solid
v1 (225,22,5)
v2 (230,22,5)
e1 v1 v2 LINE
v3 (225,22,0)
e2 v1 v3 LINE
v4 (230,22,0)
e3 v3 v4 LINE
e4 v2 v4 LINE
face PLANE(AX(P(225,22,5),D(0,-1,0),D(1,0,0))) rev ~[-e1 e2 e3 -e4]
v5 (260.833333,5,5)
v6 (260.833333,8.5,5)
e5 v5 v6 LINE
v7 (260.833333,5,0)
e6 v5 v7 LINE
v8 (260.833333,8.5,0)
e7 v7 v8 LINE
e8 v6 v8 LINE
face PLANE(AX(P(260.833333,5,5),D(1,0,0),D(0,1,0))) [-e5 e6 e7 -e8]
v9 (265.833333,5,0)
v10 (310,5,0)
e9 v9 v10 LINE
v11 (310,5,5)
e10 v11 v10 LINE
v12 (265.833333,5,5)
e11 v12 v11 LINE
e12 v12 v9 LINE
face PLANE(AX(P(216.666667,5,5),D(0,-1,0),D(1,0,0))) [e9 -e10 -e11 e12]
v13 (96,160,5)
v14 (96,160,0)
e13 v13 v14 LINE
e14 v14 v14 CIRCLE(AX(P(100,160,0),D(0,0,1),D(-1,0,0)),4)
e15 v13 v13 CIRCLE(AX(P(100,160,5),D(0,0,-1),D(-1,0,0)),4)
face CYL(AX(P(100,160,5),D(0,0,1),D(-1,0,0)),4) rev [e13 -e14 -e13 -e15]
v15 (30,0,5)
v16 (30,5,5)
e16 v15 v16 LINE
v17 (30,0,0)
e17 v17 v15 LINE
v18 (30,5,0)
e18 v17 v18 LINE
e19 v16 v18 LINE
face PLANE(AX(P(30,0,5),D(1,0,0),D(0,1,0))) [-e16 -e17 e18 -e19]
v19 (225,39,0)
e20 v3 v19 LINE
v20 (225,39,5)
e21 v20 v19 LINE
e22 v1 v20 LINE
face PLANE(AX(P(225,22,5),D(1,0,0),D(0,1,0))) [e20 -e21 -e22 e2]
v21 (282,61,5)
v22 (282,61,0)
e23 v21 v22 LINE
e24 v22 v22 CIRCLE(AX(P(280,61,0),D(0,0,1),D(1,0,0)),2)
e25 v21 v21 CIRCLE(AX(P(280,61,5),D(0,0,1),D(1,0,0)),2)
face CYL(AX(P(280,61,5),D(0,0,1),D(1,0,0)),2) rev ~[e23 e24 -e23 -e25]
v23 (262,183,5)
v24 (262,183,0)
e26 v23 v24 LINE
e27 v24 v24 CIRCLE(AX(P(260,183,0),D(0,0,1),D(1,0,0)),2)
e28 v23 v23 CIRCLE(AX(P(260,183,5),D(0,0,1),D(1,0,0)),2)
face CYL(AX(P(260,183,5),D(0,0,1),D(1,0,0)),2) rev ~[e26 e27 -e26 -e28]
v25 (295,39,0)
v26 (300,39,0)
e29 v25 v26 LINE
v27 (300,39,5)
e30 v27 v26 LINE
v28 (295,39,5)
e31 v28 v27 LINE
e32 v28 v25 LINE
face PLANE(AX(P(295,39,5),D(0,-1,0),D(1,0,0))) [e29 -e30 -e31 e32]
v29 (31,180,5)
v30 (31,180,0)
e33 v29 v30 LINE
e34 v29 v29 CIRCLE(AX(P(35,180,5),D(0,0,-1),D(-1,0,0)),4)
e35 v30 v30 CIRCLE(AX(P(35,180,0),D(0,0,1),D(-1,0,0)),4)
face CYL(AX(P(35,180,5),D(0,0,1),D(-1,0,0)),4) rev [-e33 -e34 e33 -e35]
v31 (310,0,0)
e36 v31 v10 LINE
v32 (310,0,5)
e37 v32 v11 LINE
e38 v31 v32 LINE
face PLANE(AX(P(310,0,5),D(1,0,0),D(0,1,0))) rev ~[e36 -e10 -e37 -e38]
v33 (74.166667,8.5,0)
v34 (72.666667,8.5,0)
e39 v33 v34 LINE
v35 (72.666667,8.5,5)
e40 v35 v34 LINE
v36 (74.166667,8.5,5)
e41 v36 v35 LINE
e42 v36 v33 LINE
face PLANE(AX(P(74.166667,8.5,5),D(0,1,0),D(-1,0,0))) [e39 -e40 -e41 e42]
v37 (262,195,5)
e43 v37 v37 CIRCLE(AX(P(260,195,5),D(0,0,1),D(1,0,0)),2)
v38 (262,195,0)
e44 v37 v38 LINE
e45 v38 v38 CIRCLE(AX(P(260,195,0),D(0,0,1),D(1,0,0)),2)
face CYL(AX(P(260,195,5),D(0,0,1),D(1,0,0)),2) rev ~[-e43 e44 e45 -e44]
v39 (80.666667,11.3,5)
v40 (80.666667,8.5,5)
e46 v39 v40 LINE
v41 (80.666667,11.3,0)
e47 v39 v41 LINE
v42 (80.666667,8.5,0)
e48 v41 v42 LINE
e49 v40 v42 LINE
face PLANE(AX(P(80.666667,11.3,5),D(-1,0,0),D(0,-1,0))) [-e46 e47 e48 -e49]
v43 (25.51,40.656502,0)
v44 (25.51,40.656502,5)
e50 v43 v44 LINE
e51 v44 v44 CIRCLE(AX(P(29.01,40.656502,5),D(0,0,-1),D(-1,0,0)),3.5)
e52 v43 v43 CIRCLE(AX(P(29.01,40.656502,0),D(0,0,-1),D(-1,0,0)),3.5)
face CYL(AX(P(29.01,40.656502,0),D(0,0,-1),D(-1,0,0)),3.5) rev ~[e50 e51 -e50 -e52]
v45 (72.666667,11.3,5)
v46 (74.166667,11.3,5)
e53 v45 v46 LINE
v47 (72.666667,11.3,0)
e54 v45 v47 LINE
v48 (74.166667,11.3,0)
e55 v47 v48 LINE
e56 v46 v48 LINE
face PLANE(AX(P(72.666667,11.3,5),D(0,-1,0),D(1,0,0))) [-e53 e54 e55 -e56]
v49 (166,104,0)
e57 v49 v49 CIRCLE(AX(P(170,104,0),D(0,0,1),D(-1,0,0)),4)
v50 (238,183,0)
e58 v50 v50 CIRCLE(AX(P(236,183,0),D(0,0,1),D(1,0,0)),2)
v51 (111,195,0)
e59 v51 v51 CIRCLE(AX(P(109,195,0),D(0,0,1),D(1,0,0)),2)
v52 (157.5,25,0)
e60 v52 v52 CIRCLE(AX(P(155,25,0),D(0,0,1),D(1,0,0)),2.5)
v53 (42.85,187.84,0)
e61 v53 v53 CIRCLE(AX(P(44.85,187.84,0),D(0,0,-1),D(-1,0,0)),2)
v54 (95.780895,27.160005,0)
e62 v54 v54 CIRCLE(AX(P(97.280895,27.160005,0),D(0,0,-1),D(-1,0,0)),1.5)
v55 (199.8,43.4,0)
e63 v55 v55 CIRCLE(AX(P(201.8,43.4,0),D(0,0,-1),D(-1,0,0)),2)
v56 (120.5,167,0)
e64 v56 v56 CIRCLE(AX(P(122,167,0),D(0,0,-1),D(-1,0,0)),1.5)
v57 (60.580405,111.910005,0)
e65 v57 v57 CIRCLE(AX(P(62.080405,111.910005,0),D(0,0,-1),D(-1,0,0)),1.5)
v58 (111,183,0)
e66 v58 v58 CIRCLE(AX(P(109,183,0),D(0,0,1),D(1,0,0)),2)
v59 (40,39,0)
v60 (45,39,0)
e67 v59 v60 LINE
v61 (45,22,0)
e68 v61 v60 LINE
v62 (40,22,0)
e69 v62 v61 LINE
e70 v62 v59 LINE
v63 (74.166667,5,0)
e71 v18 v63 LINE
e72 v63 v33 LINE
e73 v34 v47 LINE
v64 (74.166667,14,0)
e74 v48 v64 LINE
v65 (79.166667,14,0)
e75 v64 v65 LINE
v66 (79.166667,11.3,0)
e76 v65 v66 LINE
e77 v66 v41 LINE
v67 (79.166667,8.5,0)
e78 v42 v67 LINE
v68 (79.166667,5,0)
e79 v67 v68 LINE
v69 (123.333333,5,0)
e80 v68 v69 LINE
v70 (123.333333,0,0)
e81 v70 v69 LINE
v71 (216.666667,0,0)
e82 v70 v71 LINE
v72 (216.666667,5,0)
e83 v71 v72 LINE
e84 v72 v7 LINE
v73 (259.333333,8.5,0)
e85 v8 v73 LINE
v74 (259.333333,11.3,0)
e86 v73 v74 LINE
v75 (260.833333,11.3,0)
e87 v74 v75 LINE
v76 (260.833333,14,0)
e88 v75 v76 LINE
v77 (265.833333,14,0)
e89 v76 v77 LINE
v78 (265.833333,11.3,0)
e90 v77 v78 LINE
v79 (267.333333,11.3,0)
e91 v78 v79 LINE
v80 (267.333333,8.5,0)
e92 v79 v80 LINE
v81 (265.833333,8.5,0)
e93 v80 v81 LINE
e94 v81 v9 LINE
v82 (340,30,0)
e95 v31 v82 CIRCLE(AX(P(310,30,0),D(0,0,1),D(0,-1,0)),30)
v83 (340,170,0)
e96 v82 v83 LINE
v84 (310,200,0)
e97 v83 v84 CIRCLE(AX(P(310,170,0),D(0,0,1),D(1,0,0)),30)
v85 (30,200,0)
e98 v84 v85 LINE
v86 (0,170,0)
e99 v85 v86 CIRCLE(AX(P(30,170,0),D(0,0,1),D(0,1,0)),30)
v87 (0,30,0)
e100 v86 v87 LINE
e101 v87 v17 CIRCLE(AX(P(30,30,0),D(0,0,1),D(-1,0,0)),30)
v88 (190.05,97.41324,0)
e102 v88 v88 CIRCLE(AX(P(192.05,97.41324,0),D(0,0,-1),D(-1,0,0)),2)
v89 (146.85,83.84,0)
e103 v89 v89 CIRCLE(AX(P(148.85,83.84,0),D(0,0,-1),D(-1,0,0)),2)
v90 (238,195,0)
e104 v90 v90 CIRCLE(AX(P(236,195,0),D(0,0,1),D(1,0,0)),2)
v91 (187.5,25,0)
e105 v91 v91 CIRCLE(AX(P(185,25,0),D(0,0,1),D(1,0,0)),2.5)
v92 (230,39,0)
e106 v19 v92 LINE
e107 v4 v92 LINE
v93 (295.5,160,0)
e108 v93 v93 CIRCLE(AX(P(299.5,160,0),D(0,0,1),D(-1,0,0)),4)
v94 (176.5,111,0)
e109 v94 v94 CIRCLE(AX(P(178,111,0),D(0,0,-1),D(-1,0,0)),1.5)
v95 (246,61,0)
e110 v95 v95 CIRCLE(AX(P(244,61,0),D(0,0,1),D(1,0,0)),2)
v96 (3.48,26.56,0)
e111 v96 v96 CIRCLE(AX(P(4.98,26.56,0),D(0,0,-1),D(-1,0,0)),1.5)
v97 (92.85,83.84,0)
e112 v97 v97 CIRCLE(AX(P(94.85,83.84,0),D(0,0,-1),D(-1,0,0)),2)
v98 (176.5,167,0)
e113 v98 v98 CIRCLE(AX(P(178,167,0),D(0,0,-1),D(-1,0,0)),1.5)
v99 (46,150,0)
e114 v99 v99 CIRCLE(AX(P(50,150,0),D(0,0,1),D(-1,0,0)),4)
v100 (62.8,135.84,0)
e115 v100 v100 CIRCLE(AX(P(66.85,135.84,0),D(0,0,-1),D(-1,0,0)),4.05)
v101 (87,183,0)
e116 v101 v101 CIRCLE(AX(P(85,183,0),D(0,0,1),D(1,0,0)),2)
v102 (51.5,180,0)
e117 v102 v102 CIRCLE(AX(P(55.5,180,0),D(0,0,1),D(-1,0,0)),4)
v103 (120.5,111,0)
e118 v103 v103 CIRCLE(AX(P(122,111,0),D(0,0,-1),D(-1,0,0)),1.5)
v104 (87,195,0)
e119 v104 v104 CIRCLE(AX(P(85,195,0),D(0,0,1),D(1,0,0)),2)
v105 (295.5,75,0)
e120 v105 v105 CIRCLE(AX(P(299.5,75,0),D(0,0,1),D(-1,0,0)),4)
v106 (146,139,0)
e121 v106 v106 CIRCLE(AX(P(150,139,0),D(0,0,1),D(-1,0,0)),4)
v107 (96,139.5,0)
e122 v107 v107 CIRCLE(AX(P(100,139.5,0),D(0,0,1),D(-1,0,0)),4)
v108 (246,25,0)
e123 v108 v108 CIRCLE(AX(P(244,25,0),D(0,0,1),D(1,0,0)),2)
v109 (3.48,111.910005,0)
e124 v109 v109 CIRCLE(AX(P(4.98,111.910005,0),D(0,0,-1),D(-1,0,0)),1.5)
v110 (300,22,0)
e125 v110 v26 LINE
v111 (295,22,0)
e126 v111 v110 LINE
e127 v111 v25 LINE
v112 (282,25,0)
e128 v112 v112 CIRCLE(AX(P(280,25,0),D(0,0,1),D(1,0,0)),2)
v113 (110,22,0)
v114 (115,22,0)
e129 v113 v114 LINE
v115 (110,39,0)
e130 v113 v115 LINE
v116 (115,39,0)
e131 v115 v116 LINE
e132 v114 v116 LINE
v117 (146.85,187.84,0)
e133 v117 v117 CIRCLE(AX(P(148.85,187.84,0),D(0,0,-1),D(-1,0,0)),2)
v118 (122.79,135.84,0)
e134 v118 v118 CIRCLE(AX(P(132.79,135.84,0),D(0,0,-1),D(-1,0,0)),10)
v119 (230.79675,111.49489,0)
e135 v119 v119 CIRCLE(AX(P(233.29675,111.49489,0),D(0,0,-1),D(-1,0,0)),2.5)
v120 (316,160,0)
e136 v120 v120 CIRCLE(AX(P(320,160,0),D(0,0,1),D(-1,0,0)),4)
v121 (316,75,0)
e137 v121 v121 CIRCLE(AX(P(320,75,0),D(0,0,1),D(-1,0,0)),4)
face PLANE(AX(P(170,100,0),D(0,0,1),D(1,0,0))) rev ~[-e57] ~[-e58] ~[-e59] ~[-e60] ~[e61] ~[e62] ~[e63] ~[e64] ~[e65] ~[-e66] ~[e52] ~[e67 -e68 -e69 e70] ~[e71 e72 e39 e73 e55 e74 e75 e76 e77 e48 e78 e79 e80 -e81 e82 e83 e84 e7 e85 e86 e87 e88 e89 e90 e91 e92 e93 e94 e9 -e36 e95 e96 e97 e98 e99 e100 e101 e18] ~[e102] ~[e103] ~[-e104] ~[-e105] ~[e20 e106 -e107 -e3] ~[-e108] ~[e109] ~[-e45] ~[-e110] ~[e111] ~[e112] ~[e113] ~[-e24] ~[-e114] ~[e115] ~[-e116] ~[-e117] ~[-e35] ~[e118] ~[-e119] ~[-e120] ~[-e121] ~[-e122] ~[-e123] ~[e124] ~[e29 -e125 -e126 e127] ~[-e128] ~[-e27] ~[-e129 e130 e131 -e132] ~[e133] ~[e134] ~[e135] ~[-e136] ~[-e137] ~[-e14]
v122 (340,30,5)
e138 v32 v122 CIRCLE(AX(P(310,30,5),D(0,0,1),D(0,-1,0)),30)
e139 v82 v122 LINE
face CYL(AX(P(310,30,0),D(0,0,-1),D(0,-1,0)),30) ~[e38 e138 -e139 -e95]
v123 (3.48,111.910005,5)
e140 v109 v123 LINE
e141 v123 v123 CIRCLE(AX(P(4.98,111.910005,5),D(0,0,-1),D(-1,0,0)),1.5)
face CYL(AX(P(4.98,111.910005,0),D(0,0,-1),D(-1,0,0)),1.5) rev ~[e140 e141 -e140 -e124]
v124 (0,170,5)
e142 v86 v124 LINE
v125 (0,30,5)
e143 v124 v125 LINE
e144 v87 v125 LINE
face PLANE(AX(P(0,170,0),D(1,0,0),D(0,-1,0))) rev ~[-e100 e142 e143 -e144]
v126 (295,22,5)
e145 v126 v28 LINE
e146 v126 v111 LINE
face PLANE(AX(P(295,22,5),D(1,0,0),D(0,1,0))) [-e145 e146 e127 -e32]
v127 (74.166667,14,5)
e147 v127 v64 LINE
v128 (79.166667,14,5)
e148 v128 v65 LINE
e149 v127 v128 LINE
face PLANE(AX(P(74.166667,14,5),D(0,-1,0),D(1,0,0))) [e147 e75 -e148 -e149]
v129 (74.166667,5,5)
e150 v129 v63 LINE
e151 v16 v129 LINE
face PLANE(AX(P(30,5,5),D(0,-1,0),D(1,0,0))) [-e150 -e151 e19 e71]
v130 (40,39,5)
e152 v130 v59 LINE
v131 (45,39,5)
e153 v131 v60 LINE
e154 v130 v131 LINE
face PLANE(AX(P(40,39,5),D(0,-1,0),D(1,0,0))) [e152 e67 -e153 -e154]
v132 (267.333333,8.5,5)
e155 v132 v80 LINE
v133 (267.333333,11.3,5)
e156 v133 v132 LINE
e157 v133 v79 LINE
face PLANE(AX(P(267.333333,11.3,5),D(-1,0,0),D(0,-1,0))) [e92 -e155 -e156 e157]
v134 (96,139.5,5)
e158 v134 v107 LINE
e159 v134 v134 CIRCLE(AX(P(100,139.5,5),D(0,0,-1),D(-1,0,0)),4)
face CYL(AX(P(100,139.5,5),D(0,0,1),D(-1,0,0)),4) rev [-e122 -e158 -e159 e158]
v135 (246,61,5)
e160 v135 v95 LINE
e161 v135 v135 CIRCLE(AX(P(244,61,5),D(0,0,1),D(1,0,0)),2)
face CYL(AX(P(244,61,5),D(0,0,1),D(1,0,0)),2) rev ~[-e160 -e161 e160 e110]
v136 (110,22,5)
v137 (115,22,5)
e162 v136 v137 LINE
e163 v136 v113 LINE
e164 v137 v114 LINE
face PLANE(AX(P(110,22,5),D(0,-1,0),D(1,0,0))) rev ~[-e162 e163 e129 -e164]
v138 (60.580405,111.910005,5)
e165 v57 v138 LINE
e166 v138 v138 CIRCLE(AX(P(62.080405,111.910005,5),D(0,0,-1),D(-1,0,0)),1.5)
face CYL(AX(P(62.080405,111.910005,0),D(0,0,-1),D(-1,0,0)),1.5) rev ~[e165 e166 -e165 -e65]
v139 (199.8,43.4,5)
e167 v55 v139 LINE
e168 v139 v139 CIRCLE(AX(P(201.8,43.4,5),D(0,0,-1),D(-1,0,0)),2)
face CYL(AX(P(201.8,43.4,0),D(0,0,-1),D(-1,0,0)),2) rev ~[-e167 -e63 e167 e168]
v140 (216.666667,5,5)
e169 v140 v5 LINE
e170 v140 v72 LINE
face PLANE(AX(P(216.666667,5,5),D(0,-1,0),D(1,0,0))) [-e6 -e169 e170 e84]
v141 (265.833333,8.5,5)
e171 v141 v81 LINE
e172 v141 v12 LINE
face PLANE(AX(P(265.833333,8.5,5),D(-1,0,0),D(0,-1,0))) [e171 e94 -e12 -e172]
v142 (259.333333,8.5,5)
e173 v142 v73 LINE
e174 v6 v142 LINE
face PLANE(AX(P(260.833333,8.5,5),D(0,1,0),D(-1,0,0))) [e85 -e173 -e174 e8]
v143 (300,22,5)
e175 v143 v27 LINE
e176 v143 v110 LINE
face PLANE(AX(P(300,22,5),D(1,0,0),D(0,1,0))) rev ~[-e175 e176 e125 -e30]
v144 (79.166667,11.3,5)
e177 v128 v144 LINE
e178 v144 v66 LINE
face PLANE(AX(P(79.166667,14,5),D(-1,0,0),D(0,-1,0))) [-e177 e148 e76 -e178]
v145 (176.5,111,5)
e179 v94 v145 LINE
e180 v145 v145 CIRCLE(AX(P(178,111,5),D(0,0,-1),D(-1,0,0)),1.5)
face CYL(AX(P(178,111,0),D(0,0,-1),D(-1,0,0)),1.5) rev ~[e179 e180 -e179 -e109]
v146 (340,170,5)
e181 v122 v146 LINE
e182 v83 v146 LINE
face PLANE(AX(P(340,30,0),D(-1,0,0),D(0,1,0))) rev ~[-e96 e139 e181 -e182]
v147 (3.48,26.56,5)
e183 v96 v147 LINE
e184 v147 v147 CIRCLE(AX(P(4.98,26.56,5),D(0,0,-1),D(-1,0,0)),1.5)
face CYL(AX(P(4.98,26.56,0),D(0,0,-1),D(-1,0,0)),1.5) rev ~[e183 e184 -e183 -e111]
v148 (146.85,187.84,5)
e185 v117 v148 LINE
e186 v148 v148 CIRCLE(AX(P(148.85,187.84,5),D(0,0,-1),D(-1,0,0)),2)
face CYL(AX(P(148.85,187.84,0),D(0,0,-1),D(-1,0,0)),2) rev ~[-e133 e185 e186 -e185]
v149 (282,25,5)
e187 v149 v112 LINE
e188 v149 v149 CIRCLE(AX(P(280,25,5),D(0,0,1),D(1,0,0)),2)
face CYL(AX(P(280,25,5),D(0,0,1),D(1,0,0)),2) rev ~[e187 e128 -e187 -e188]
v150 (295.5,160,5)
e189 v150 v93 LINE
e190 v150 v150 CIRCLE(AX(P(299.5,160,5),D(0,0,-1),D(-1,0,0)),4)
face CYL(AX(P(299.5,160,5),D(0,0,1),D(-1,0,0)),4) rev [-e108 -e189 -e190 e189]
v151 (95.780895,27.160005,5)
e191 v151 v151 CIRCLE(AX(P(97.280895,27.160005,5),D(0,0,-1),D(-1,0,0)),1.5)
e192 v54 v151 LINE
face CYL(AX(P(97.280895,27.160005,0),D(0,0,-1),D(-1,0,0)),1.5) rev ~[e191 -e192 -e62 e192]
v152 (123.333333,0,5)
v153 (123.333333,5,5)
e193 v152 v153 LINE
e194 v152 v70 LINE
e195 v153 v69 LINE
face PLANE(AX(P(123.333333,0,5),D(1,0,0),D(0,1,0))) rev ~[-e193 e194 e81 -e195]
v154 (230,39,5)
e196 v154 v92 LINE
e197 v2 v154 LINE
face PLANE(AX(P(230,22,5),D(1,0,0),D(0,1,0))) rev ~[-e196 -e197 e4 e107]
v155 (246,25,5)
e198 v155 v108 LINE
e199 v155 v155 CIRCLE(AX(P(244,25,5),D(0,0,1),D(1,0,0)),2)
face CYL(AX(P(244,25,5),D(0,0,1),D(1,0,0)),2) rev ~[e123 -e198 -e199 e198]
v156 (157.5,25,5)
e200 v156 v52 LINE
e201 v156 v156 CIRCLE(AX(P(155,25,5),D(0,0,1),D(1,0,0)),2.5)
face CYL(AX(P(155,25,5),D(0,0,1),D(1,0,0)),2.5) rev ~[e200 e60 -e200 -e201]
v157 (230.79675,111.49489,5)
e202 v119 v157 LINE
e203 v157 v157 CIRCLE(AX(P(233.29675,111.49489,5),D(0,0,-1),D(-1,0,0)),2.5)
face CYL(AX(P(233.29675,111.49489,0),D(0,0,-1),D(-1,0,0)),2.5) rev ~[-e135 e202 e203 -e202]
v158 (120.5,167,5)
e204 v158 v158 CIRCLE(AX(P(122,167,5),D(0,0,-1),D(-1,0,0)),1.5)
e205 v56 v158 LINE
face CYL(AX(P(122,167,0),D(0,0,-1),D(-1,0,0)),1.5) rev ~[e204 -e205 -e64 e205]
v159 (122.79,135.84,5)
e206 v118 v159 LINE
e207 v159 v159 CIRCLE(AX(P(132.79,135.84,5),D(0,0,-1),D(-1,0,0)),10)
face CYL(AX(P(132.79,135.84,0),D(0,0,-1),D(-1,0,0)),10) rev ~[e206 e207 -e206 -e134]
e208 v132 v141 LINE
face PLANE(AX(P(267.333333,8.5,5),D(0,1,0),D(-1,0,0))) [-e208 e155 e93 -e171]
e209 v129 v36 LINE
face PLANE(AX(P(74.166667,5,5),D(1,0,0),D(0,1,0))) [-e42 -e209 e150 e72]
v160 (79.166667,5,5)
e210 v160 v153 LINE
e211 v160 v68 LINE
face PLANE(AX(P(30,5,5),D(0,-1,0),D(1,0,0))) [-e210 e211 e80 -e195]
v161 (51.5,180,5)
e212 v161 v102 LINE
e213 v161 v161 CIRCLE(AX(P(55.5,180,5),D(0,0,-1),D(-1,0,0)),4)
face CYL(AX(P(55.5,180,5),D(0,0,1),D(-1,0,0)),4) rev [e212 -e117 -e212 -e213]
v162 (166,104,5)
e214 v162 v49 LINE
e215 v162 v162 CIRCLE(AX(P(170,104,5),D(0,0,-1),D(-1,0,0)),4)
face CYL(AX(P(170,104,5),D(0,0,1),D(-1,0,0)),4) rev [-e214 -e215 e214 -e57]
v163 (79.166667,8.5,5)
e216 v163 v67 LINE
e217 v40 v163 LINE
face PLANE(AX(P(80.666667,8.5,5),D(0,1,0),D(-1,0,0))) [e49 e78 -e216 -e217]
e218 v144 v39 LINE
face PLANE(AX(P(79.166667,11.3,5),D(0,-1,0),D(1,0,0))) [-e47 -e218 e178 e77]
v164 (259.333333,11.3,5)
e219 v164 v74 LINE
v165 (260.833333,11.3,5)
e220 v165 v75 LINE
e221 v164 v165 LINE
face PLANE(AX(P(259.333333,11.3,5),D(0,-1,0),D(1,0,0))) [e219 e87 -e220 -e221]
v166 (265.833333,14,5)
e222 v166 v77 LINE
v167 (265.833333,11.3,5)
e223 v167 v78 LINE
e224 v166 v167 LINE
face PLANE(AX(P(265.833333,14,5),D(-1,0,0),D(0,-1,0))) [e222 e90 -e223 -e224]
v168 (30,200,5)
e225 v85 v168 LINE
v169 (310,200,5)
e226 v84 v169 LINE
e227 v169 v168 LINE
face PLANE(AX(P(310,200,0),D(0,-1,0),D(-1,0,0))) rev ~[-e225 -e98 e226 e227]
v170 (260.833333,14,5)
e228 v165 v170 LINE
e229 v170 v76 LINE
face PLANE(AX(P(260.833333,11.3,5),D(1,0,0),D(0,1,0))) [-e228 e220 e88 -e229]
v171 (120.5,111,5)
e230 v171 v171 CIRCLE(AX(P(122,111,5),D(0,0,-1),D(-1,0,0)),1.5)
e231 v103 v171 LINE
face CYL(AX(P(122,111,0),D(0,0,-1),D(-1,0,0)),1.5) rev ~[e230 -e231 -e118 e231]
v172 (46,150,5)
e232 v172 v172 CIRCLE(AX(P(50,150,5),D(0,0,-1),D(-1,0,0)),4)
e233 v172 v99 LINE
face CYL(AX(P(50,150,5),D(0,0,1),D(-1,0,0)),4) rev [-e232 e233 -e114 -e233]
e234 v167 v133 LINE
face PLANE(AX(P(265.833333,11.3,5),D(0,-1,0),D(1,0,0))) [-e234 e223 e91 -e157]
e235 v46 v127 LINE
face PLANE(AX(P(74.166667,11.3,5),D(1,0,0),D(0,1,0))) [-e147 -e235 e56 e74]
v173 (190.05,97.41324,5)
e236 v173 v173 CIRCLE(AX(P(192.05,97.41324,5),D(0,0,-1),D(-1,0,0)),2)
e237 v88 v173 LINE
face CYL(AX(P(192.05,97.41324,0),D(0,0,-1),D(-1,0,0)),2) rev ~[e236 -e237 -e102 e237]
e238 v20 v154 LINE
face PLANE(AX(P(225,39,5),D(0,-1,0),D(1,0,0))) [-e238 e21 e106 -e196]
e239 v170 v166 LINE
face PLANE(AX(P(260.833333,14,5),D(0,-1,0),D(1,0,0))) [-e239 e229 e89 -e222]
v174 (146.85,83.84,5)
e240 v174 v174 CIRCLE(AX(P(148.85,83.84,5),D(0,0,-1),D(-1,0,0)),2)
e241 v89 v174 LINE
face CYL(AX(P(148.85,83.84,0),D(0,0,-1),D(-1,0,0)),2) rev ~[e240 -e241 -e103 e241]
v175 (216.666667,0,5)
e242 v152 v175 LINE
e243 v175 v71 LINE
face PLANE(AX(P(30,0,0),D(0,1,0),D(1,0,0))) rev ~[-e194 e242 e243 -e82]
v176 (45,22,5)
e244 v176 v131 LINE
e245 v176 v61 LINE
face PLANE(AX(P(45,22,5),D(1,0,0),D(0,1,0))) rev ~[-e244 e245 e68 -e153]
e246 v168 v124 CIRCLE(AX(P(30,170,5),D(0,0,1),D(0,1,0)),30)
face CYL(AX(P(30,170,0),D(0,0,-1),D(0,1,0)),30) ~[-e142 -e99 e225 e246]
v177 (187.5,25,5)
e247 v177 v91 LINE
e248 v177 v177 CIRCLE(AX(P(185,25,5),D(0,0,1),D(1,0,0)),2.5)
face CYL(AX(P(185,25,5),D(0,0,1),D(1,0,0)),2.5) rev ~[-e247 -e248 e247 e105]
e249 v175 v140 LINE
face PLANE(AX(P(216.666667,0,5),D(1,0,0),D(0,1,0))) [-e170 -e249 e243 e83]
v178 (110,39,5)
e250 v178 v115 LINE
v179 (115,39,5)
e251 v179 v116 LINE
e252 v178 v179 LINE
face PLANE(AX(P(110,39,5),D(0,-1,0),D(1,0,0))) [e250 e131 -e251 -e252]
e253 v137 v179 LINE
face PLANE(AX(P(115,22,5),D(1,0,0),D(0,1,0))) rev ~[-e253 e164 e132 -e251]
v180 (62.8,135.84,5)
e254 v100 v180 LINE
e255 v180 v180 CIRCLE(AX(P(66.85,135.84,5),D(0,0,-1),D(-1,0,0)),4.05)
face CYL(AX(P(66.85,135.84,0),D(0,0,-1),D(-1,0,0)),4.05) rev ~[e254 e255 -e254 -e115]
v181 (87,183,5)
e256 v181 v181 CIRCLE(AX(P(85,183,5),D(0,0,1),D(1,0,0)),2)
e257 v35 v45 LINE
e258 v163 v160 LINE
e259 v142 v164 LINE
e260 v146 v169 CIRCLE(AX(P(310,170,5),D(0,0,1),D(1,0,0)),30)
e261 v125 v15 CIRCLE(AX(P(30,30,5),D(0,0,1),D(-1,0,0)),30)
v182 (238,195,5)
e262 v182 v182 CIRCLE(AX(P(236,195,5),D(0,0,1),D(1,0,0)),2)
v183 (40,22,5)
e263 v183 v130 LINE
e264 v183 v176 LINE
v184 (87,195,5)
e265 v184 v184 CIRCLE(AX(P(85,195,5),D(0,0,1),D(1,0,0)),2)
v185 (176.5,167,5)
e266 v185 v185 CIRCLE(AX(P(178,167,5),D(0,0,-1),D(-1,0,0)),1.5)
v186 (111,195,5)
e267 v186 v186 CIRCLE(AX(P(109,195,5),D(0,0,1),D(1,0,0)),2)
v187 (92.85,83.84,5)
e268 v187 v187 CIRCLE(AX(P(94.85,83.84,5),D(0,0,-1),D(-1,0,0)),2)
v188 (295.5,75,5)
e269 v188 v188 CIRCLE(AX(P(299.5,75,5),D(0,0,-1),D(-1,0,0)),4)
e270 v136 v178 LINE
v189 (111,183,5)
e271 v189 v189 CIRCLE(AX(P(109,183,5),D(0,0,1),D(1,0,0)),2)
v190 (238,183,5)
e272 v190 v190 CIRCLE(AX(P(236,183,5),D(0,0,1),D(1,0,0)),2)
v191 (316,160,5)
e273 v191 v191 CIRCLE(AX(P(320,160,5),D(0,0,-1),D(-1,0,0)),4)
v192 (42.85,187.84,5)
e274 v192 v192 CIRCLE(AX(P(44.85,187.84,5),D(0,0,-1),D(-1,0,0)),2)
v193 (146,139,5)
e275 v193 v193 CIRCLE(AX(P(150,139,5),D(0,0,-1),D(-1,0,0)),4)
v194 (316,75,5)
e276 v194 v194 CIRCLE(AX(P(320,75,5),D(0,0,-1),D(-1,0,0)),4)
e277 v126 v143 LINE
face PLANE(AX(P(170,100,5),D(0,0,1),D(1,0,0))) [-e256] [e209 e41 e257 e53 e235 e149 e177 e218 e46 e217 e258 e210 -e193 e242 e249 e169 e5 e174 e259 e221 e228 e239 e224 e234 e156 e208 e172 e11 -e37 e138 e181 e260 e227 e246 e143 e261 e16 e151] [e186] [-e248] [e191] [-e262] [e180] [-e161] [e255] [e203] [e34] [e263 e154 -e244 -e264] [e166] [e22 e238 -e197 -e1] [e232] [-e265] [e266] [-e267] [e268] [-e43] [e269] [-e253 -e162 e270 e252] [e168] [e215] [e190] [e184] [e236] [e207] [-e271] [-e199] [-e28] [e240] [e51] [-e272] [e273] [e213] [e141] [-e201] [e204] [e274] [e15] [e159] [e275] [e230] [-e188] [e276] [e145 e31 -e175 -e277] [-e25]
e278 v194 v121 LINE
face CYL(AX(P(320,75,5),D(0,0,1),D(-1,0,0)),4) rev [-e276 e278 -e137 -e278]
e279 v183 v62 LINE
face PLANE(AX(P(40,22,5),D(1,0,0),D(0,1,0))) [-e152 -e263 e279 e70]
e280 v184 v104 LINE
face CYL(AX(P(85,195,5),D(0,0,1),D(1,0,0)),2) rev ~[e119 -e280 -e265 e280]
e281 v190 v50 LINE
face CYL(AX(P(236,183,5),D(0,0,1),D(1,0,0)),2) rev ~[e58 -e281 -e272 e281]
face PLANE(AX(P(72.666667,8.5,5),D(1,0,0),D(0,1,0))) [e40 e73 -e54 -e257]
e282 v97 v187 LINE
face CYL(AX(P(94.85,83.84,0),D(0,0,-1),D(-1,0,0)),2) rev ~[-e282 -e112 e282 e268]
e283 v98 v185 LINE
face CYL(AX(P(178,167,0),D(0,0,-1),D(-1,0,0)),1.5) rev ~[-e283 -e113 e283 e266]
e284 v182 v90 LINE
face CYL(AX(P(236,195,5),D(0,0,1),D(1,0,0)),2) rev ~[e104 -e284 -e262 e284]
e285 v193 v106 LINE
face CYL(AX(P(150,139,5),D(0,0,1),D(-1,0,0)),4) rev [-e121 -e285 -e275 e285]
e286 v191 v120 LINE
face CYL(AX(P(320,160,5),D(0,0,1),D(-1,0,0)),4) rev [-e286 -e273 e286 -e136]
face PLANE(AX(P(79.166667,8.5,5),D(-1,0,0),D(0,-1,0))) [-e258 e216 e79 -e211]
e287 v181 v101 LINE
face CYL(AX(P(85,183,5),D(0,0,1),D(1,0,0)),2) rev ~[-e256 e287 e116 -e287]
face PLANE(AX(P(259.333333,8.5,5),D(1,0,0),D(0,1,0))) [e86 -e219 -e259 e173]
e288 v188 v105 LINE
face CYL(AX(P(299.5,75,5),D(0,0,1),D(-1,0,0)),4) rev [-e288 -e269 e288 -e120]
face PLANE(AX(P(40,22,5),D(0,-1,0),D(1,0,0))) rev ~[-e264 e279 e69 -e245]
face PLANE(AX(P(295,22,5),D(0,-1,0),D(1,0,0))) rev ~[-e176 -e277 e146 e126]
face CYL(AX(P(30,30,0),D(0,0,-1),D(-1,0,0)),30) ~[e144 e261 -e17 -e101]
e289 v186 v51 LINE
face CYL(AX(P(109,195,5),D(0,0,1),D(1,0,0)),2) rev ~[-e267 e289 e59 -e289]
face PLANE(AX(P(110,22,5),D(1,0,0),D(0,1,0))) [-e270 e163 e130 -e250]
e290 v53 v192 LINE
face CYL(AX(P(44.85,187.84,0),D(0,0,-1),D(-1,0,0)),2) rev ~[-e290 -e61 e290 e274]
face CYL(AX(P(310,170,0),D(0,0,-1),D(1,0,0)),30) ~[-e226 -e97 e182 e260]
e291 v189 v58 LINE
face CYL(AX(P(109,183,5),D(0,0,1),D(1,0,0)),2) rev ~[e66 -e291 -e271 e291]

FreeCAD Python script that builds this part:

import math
import FreeCAD as App
import Part
import Sketcher


def add_polygon(sketch, points):
    """Adds a closed chain of lines whose ends are joined by coincident constraints."""
    first, n = sketch.GeometryCount, len(points)
    for a, b in zip(points, points[1:] + points[:1]):
        sketch.addGeometry(Part.LineSegment(App.Vector(*a, 0), App.Vector(*b, 0)), False)
    for i in range(n):
        sketch.addConstraint(Sketcher.Constraint("Coincident", first + i, 2, first + (i + 1) % n, 1))

doc = App.newDocument("Part")
body = doc.addObject("PartDesign::Body", "Body")

# Sketch on XY plane
sketch1 = body.newObject("Sketcher::SketchObject", "Sketch")
sketch1.AttachmentSupport = (doc.getObject("XY_Plane"), [""])
sketch1.MapMode = "FlatFace"
sketch1.addGeometry([
    Part.LineSegment(App.Vector(30, 0, 0), App.Vector(310, 0, 0)),  # 0
    Part.ArcOfCircle(Part.Circle(App.Vector(310, 30, 0), App.Vector(0, 0, 1), 30), math.radians(-90), math.radians(0)),  # 1
    Part.LineSegment(App.Vector(340, 30, 0), App.Vector(340, 170, 0)),  # 2
    Part.ArcOfCircle(Part.Circle(App.Vector(310, 170, 0), App.Vector(0, 0, 1), 30), math.radians(0), math.radians(90)),  # 3
    Part.LineSegment(App.Vector(310, 200, 0), App.Vector(30, 200, 0)),  # 4
    Part.ArcOfCircle(Part.Circle(App.Vector(30, 170, 0), App.Vector(0, 0, 1), 30), math.radians(90), math.radians(180)),  # 5
    Part.LineSegment(App.Vector(0, 170, 0), App.Vector(0, 30, 0)),  # 6
    Part.ArcOfCircle(Part.Circle(App.Vector(30, 30, 0), App.Vector(0, 0, 1), 30), math.radians(180), math.radians(270)),  # 7
], False)
sketch1.addConstraint([
    Sketcher.Constraint("Tangent", 0, 2, 1, 1),
    Sketcher.Constraint("Tangent", 1, 2, 2, 1),
    Sketcher.Constraint("Tangent", 2, 2, 3, 1),
    Sketcher.Constraint("Tangent", 3, 2, 4, 1),
    Sketcher.Constraint("Tangent", 4, 2, 5, 1),
    Sketcher.Constraint("Tangent", 5, 2, 6, 1),
    Sketcher.Constraint("Tangent", 6, 2, 7, 1),
    Sketcher.Constraint("Tangent", 7, 2, 0, 1),
    Sketcher.Constraint("Horizontal", 0),
    Sketcher.Constraint("Vertical", 2),
    Sketcher.Constraint("Horizontal", 4),
    Sketcher.Constraint("Vertical", 6),
    Sketcher.Constraint("Equal", 1, 3),
    Sketcher.Constraint("Equal", 3, 5),
    Sketcher.Constraint("Equal", 5, 7),
    Sketcher.Constraint("PointOnObject", 0, 2, -1),
    Sketcher.Constraint("PointOnObject", 5, 2, -2),
    Sketcher.Constraint("Radius", 1, 30.0),
    Sketcher.Constraint("DistanceX", 0, 1, 0, 2, 280.0),
    Sketcher.Constraint("DistanceY", 2, 1, 2, 2, 140.0),
])
pad1 = body.newObject("PartDesign::Pad", "Pad")
pad1.Profile = sketch1
pad1.Length = 5

# Sketch on XY plane
sketch2 = body.newObject("Sketcher::SketchObject", "Sketch001")
sketch2.AttachmentSupport = (doc.getObject("XY_Plane"), [""])
sketch2.MapMode = "FlatFace"
sketch2.AttachmentOffset = App.Placement(App.Vector(0, 0, 5), App.Rotation())
sketch2.addGeometry([
    Part.Circle(App.Vector(55.5, 180, 0), App.Vector(0, 0, 1), 4),  # 0
    Part.Circle(App.Vector(35, 180, 0), App.Vector(0, 0, 1), 4),  # 1
    Part.Circle(App.Vector(100, 160, 0), App.Vector(0, 0, 1), 4),  # 2
    Part.Circle(App.Vector(100, 139.5, 0), App.Vector(0, 0, 1), 4),  # 3
    Part.Circle(App.Vector(299.5, 160, 0), App.Vector(0, 0, 1), 4),  # 4
    Part.Circle(App.Vector(320, 160, 0), App.Vector(0, 0, 1), 4),  # 5
    Part.Circle(App.Vector(320, 75, 0), App.Vector(0, 0, 1), 4),  # 6
    Part.Circle(App.Vector(299.5, 75, 0), App.Vector(0, 0, 1), 4),  # 7
    Part.Circle(App.Vector(150, 139, 0), App.Vector(0, 0, 1), 4),  # 8
    Part.Circle(App.Vector(170, 104, 0), App.Vector(0, 0, 1), 4),  # 9
    Part.Circle(App.Vector(50, 150, 0), App.Vector(0, 0, 1), 4),  # 10
], False)
sketch2.addConstraint([
    Sketcher.Constraint("Equal", 0, 1),
    Sketcher.Constraint("Equal", 1, 2),
    Sketcher.Constraint("Equal", 2, 3),
    Sketcher.Constraint("Equal", 3, 4),
    Sketcher.Constraint("Equal", 4, 5),
    Sketcher.Constraint("Equal", 5, 6),
    Sketcher.Constraint("Equal", 6, 7),
    Sketcher.Constraint("Equal", 7, 8),
    Sketcher.Constraint("Equal", 8, 9),
    Sketcher.Constraint("Equal", 9, 10),
    Sketcher.Constraint("Horizontal", 0, 3, 1, 3),
    Sketcher.Constraint("Horizontal", 2, 3, 4, 3),
    Sketcher.Constraint("Horizontal", 4, 3, 5, 3),
    Sketcher.Constraint("Horizontal", 6, 3, 7, 3),
    Sketcher.Constraint("Vertical", 2, 3, 3, 3),
    Sketcher.Constraint("Vertical", 5, 3, 6, 3),
    Sketcher.Constraint("Vertical", 4, 3, 7, 3),
    Sketcher.Constraint("Diameter", 0, 8.0),
    Sketcher.Constraint("DistanceY", -1, 1, 0, 3, 180.0),
    Sketcher.Constraint("DistanceX", -1, 1, 1, 3, 35.0),
    Sketcher.Constraint("DistanceX", -1, 1, 2, 3, 100.0),
    Sketcher.Constraint("DistanceY", -1, 1, 2, 3, 160.0),
    Sketcher.Constraint("DistanceX", -1, 1, 5, 3, 320.0),
    Sketcher.Constraint("DistanceY", -1, 1, 6, 3, 75.0),
    Sketcher.Constraint("DistanceX", -1, 1, 8, 3, 150.0),
    Sketcher.Constraint("DistanceY", -1, 1, 8, 3, 139.0),
    Sketcher.Constraint("DistanceX", -1, 1, 9, 3, 170.0),
    Sketcher.Constraint("DistanceY", -1, 1, 9, 3, 104.0),
    Sketcher.Constraint("DistanceX", -1, 1, 10, 3, 50.0),
    Sketcher.Constraint("DistanceY", -1, 1, 10, 3, 150.0),
    Sketcher.Constraint("DistanceX", 0, 3, 4, 3, 244.0),
    Sketcher.Constraint("DistanceX", -1, 1, 0, 3, 55.5),
    Sketcher.Constraint("DistanceY", -1, 1, 3, 3, 139.5),
])
pocket1 = body.newObject("PartDesign::Pocket", "Pocket")
pocket1.Profile = sketch2
pocket1.Length = 10

# Sketch on XY plane
sketch3 = body.newObject("Sketcher::SketchObject", "Sketch002")
sketch3.AttachmentSupport = (doc.getObject("XY_Plane"), [""])
sketch3.MapMode = "FlatFace"
sketch3.addGeometry([
    Part.Circle(App.Vector(148.85, 83.84, 0), App.Vector(0, 0, 1), 2),  # 0
    Part.Circle(App.Vector(94.85, 83.84, 0), App.Vector(0, 0, 1), 2),  # 1
    Part.Circle(App.Vector(44.85, 187.84, 0), App.Vector(0, 0, 1), 2),  # 2
    Part.Circle(App.Vector(148.85, 187.84, 0), App.Vector(0, 0, 1), 2),  # 3
    Part.Circle(App.Vector(132.79, 135.84, 0), App.Vector(0, 0, 1), 10),  # 4
    Part.Circle(App.Vector(66.85, 135.84, 0), App.Vector(0, 0, 1), 4.05),  # 5
], False)
sketch3.addConstraint([
    Sketcher.Constraint("Equal", 0, 1),
    Sketcher.Constraint("Equal", 1, 2),
    Sketcher.Constraint("Equal", 2, 3),
    Sketcher.Constraint("Horizontal", 0, 3, 1, 3),
    Sketcher.Constraint("Horizontal", 2, 3, 3, 3),
    Sketcher.Constraint("Horizontal", 4, 3, 5, 3),
    Sketcher.Constraint("Vertical", 0, 3, 3, 3),
    Sketcher.Constraint("Diameter", 0, 4.0),
    Sketcher.Constraint("Diameter", 4, 20.0),
    Sketcher.Constraint("Diameter", 5, 8.1),
    Sketcher.Constraint("DistanceX", 1, 3, 0, 3, 54.0),
    Sketcher.Constraint("DistanceX", 2, 3, 1, 3, 50.0),
    Sketcher.Constraint("DistanceY", 1, 3, 2, 3, 104.0),
    Sketcher.Constraint("DistanceY", 0, 3, 4, 3, 52.0),
    Sketcher.Constraint("DistanceX", 2, 3, 5, 3, 22.0),
    Sketcher.Constraint("DistanceX", -1, 1, 0, 3, 148.85),
    Sketcher.Constraint("DistanceY", -1, 1, 0, 3, 83.84),
    Sketcher.Constraint("DistanceX", -1, 1, 4, 3, 132.79),
])
pocket2 = body.newObject("PartDesign::Pocket", "Pocket001")
pocket2.Profile = sketch3
pocket2.Length = 10
pocket2.Reversed = True

# Sketch on XY plane
sketch4 = body.newObject("Sketcher::SketchObject", "Sketch003")
sketch4.AttachmentSupport = (doc.getObject("XY_Plane"), [""])
sketch4.MapMode = "FlatFace"
sketch4.addGeometry([
    Part.Circle(App.Vector(178, 167, 0), App.Vector(0, 0, 1), 1.5),
    Part.Circle(App.Vector(122, 111, 0), App.Vector(0, 0, 1), 1.5),
    Part.Circle(App.Vector(122, 167, 0), App.Vector(0, 0, 1), 1.5),
    Part.Circle(App.Vector(178, 111, 0), App.Vector(0, 0, 1), 1.5),
], False)
sketch4.addConstraint([
    Sketcher.Constraint("Equal", 0, 1),
    Sketcher.Constraint("Equal", 1, 2),
    Sketcher.Constraint("Equal", 2, 3),
    Sketcher.Constraint("Horizontal", 0, 3, 2, 3),
    Sketcher.Constraint("Horizontal", 1, 3, 3, 3),
    Sketcher.Constraint("Vertical", 1, 3, 2, 3),
    Sketcher.Constraint("Vertical", 0, 3, 3, 3),
    Sketcher.Constraint("Diameter", 0, 3.0),
    Sketcher.Constraint("DistanceX", -1, 1, 0, 3, 178.0),
    Sketcher.Constraint("DistanceY", -1, 1, 0, 3, 167.0),
    Sketcher.Constraint("DistanceX", -1, 1, 1, 3, 122.0),
    Sketcher.Constraint("DistanceY", -1, 1, 1, 3, 111.0),
])
pocket3 = body.newObject("PartDesign::Pocket", "Pocket002")
pocket3.Profile = sketch4
pocket3.Length = 10
pocket3.Reversed = True

# Sketch on XY plane
sketch5 = body.newObject("Sketcher::SketchObject", "Sketch004")
sketch5.AttachmentSupport = (doc.getObject("XY_Plane"), [""])
sketch5.MapMode = "FlatFace"
sketch5.AttachmentOffset = App.Placement(App.Vector(0, 0, 5), App.Rotation())
sketch5.addGeometry([
    Part.Circle(App.Vector(244, 61, 0), App.Vector(0, 0, 1), 2),
    Part.Circle(App.Vector(280, 61, 0), App.Vector(0, 0, 1), 2),
    Part.Circle(App.Vector(244, 25, 0), App.Vector(0, 0, 1), 2),
    Part.Circle(App.Vector(280, 25, 0), App.Vector(0, 0, 1), 2),
], False)
sketch5.addConstraint([
    Sketcher.Constraint("Equal", 0, 1),
    Sketcher.Constraint("Equal", 1, 2),
    Sketcher.Constraint("Equal", 2, 3),
    Sketcher.Constraint("Horizontal", 0, 3, 1, 3),
    Sketcher.Constraint("Horizontal", 2, 3, 3, 3),
    Sketcher.Constraint("Vertical", 0, 3, 2, 3),
    Sketcher.Constraint("Vertical", 1, 3, 3, 3),
    Sketcher.Constraint("Diameter", 0, 4.0),
    Sketcher.Constraint("DistanceX", -1, 1, 0, 3, 244.0),
    Sketcher.Constraint("DistanceY", -1, 1, 0, 3, 61.0),
    Sketcher.Constraint("DistanceX", -1, 1, 1, 3, 280.0),
    Sketcher.Constraint("DistanceY", -1, 1, 2, 3, 25.0),
])
pocket4 = body.newObject("PartDesign::Pocket", "Pocket003")
pocket4.Profile = sketch5
pocket4.Length = 10

# Sketch on XY plane
sketch6 = body.newObject("Sketcher::SketchObject", "Sketch005")
sketch6.AttachmentSupport = (doc.getObject("XY_Plane"), [""])
sketch6.MapMode = "FlatFace"
sketch6.AttachmentOffset = App.Placement(App.Vector(0, 0, 5), App.Rotation())
sketch6.addGeometry([
    Part.Circle(App.Vector(236, 195, 0), App.Vector(0, 0, 1), 2),  # 0
    Part.Circle(App.Vector(236, 183, 0), App.Vector(0, 0, 1), 2),  # 1
    Part.Circle(App.Vector(260, 183, 0), App.Vector(0, 0, 1), 2),  # 2
    Part.Circle(App.Vector(260, 195, 0), App.Vector(0, 0, 1), 2),  # 3
    Part.Circle(App.Vector(85, 195, 0), App.Vector(0, 0, 1), 2),  # 4
    Part.Circle(App.Vector(85, 183, 0), App.Vector(0, 0, 1), 2),  # 5
    Part.Circle(App.Vector(109, 183, 0), App.Vector(0, 0, 1), 2),  # 6
    Part.Circle(App.Vector(109, 195, 0), App.Vector(0, 0, 1), 2),  # 7
], False)
sketch6.addConstraint([
    Sketcher.Constraint("Equal", 0, 1),
    Sketcher.Constraint("Equal", 1, 2),
    Sketcher.Constraint("Equal", 2, 3),
    Sketcher.Constraint("Equal", 3, 4),
    Sketcher.Constraint("Equal", 4, 5),
    Sketcher.Constraint("Equal", 5, 6),
    Sketcher.Constraint("Equal", 6, 7),
    Sketcher.Constraint("Horizontal", 1, 3, 2, 3),
    Sketcher.Constraint("Horizontal", 0, 3, 3, 3),
    Sketcher.Constraint("Horizontal", 3, 3, 4, 3),
    Sketcher.Constraint("Horizontal", 2, 3, 5, 3),
    Sketcher.Constraint("Horizontal", 5, 3, 6, 3),
    Sketcher.Constraint("Horizontal", 4, 3, 7, 3),
    Sketcher.Constraint("Vertical", 0, 3, 1, 3),
    Sketcher.Constraint("Vertical", 2, 3, 3, 3),
    Sketcher.Constraint("Vertical", 4, 3, 5, 3),
    Sketcher.Constraint("Vertical", 6, 3, 7, 3),
    Sketcher.Constraint("Diameter", 0, 4.0),
    Sketcher.Constraint("DistanceX", -1, 1, 0, 3, 236.0),
    Sketcher.Constraint("DistanceY", -1, 1, 0, 3, 195.0),
    Sketcher.Constraint("DistanceY", -1, 1, 1, 3, 183.0),
    Sketcher.Constraint("DistanceX", -1, 1, 2, 3, 260.0),
    Sketcher.Constraint("DistanceX", -1, 1, 4, 3, 85.0),
    Sketcher.Constraint("DistanceX", -1, 1, 6, 3, 109.0),
])
pocket5 = body.newObject("PartDesign::Pocket", "Pocket004")
pocket5.Profile = sketch6
pocket5.Length = 10

# Sketch on XY plane
sketch7 = body.newObject("Sketcher::SketchObject", "Sketch006")
sketch7.AttachmentSupport = (doc.getObject("XY_Plane"), [""])
sketch7.MapMode = "FlatFace"
sketch7.addGeometry([
    Part.Circle(App.Vector(29.01, 40.656502, 0), App.Vector(0, 0, 1), 3.5),  # 0
    Part.Circle(App.Vector(62.080405, 111.910005, 0), App.Vector(0, 0, 1), 1.5),  # 1
    Part.Circle(App.Vector(4.98, 111.910005, 0), App.Vector(0, 0, 1), 1.5),  # 2
    Part.Circle(App.Vector(97.280895, 27.160005, 0), App.Vector(0, 0, 1), 1.5),  # 3
    Part.Circle(App.Vector(4.98, 26.56, 0), App.Vector(0, 0, 1), 1.5),  # 4
    Part.Circle(App.Vector(233.29675, 111.49489, 0), App.Vector(0, 0, 1), 2.5),  # 5
    Part.Circle(App.Vector(201.8, 43.4, 0), App.Vector(0, 0, 1), 2),  # 6
    Part.Circle(App.Vector(192.05, 97.41324, 0), App.Vector(0, 0, 1), 2),  # 7
], False)
sketch7.addConstraint([
    Sketcher.Constraint("Equal", 1, 2),
    Sketcher.Constraint("Equal", 2, 3),
    Sketcher.Constraint("Equal", 3, 4),
    Sketcher.Constraint("Equal", 6, 7),
    Sketcher.Constraint("Horizontal", 1, 3, 2, 3),
    Sketcher.Constraint("Vertical", 2, 3, 4, 3),
    Sketcher.Constraint("Diameter", 0, 7.0),
    Sketcher.Constraint("Diameter", 1, 3.0),
    Sketcher.Constraint("Diameter", 5, 5.0),
    Sketcher.Constraint("Diameter", 6, 4.0),
    Sketcher.Constraint("DistanceX", -1, 1, 6, 3, 201.8),
    Sketcher.Constraint("DistanceY", -1, 1, 6, 3, 43.4),
    Sketcher.Constraint("DistanceX", -1, 1, 0, 3, 29.01),
    Sketcher.Constraint("DistanceX", -1, 1, 2, 3, 4.98),
    Sketcher.Constraint("DistanceY", -1, 1, 4, 3, 26.56),
    Sketcher.Constraint("DistanceX", -1, 1, 7, 3, 192.05),
    Sketcher.Constraint("DistanceY", 3, 3, 1, 3, 84.75),
    Sketcher.Constraint("DistanceX", -1, 1, 5, 3, 233.29675),
    Sketcher.Constraint("DistanceY", -1, 1, 5, 3, 111.49489),
    Sketcher.Constraint("DistanceY", -1, 1, 7, 3, 97.41324),
    Sketcher.Constraint("DistanceX", 1, 3, 3, 3, 35.20049),
    Sketcher.Constraint("DistanceY", -1, 1, 0, 3, 40.656502),
    Sketcher.Constraint("DistanceX", -1, 1, 1, 3, 62.080405),
    Sketcher.Constraint("DistanceY", -1, 1, 1, 3, 111.910005),
])
pocket6 = body.newObject("PartDesign::Pocket", "Pocket005")
pocket6.Profile = sketch7
pocket6.Length = 10
pocket6.Reversed = True

# Sketch on XY plane
sketch8 = body.newObject("Sketcher::SketchObject", "Sketch007")
sketch8.AttachmentSupport = (doc.getObject("XY_Plane"), [""])
sketch8.MapMode = "FlatFace"
sketch8.AttachmentOffset = App.Placement(App.Vector(0, 0, 5), App.Rotation())
add_polygon(sketch8, [(30, 5), (30, 0), (123.333333, 0), (123.333333, 5)])  # lines 0-3
add_polygon(sketch8, [(216.666667, 5), (216.666667, 0), (310, 0), (310, 5)])  # lines 4-7
sketch8.addConstraint([
    Sketcher.Constraint("Vertical", 0),
    Sketcher.Constraint("Horizontal", 1),
    Sketcher.Constraint("Vertical", 2),
    Sketcher.Constraint("Horizontal", 3),
    Sketcher.Constraint("Vertical", 4),
    Sketcher.Constraint("Horizontal", 5),
    Sketcher.Constraint("Vertical", 6),
    Sketcher.Constraint("Horizontal", 7),
    Sketcher.Constraint("PointOnObject", 0, 2, -1),
    Sketcher.Constraint("PointOnObject", 4, 2, -1),
    Sketcher.Constraint("Horizontal", 3, 2, 6, 2),
    Sketcher.Constraint("Equal", 3, 5),
    Sketcher.Constraint("DistanceY", 0, 2, 0, 1, 5.0),
    Sketcher.Constraint("DistanceX", -1, 1, 0, 2, 30.0),
    Sketcher.Constraint("DistanceX", -1, 1, 5, 2, 310.0),
    Sketcher.Constraint("DistanceX", 1, 1, 1, 2, 93.333333),
])
pocket7 = body.newObject("PartDesign::Pocket", "Pocket006")
pocket7.Profile = sketch8
pocket7.Length = 10

# Sketch on XY plane
sketch9 = body.newObject("Sketcher::SketchObject", "Sketch008")
sketch9.AttachmentSupport = (doc.getObject("XY_Plane"), [""])
sketch9.MapMode = "FlatFace"
sketch9.AttachmentOffset = App.Placement(App.Vector(0, 0, 5), App.Rotation())
add_polygon(sketch9, [(74.166667, 8.5), (74.166667, 5), (79.166667, 5), (79.166667, 8.5), (80.666667, 8.5), (80.666667, 11.3), (79.166667, 11.3), (79.166667, 14), (74.166667, 14), (74.166667, 11.3), (72.666667, 11.3), (72.666667, 8.5)])  # lines 0-11
add_polygon(sketch9, [(260.833333, 14), (260.833333, 11.3), (259.333333, 11.3), (259.333333, 8.5), (260.833333, 8.5), (260.833333, 5), (265.833333, 5), (265.833333, 8.5), (267.333333, 8.5), (267.333333, 11.3), (265.833333, 11.3), (265.833333, 14)])  # lines 12-23
sketch9.addConstraint([
    Sketcher.Constraint("Vertical", 0),
    Sketcher.Constraint("Horizontal", 1),
    Sketcher.Constraint("Vertical", 2),
    Sketcher.Constraint("Horizontal", 3),
    Sketcher.Constraint("Vertical", 4),
    Sketcher.Constraint("Horizontal", 5),
    Sketcher.Constraint("Vertical", 6),
    Sketcher.Constraint("Horizontal", 7),
    Sketcher.Constraint("Vertical", 8),
    Sketcher.Constraint("Horizontal", 9),
    Sketcher.Constraint("Vertical", 10),
    Sketcher.Constraint("Horizontal", 11),
    Sketcher.Constraint("Vertical", 12),
    Sketcher.Constraint("Horizontal", 13),
    Sketcher.Constraint("Vertical", 14),
    Sketcher.Constraint("Horizontal", 15),
    Sketcher.Constraint("Vertical", 16),
    Sketcher.Constraint("Horizontal", 17),
    Sketcher.Constraint("Vertical", 18),
    Sketcher.Constraint("Horizontal", 19),
    Sketcher.Constraint("Vertical", 20),
    Sketcher.Constraint("Horizontal", 21),
    Sketcher.Constraint("Vertical", 22),
    Sketcher.Constraint("Horizontal", 23),
    Sketcher.Constraint("Horizontal", 5, 2, 8, 2),
    Sketcher.Constraint("Horizontal", 3, 2, 10, 2),
    Sketcher.Constraint("Horizontal", 9, 2, 12, 2),
    Sketcher.Constraint("Horizontal", 11, 2, 14, 2),
    Sketcher.Constraint("Horizontal", 1, 2, 16, 2),
    Sketcher.Constraint("Horizontal", 15, 2, 18, 2),
    Sketcher.Constraint("Horizontal", 13, 2, 20, 2),
    Sketcher.Constraint("Horizontal", 7, 2, 22, 2),
    Sketcher.Constraint("Vertical", 2, 2, 5, 2),
    Sketcher.Constraint("Vertical", 0, 2, 7, 2),
    Sketcher.Constraint("Vertical", 12, 2, 15, 2),
    Sketcher.Constraint("Vertical", 18, 2, 21, 2),
    Sketcher.Constraint("Equal", 5, 9),
    Sketcher.Constraint("Equal", 11, 13),
    Sketcher.Constraint("Equal", 7, 17),
    Sketcher.Constraint("Equal", 15, 19),
    Sketcher.Constraint("DistanceX", 1, 1, 1, 2, 5.0),
    Sketcher.Constraint("DistanceX", 3, 1, 3, 2, 1.5),
    Sketcher.Constraint("DistanceY", 0, 2, 0, 1, 3.5),
    Sketcher.Constraint("DistanceY", 4, 1, 4, 2, 2.8),
    Sketcher.Constraint("DistanceY", 6, 1, 6, 2, 2.7),
    Sketcher.Constraint("DistanceY", -1, 1, 0, 2, 5.0),
    Sketcher.Constraint("DistanceX", -1, 1, 0, 2, 74.166667),
    Sketcher.Constraint("DistanceX", -1, 1, 12, 2, 260.833333),
])
pocket8 = body.newObject("PartDesign::Pocket", "Pocket007")
pocket8.Profile = sketch9
pocket8.Length = 5

# Sketch on XY plane
sketch10 = body.newObject("Sketcher::SketchObject", "Sketch009")
sketch10.AttachmentSupport = (doc.getObject("XY_Plane"), [""])
sketch10.MapMode = "FlatFace"
sketch10.AttachmentOffset = App.Placement(App.Vector(0, 0, 5), App.Rotation())
add_polygon(sketch10, [(40, 39), (40, 22), (45, 22), (45, 39)])  # lines 0-3
add_polygon(sketch10, [(110, 39), (110, 22), (115, 22), (115, 39)])  # lines 4-7
add_polygon(sketch10, [(225, 39), (225, 22), (230, 22), (230, 39)])  # lines 8-11
add_polygon(sketch10, [(295, 39), (295, 22), (300, 22), (300, 39)])  # lines 12-15
sketch10.addConstraint([
    Sketcher.Constraint("Vertical", 0),
    Sketcher.Constraint("Horizontal", 1),
    Sketcher.Constraint("Vertical", 2),
    Sketcher.Constraint("Horizontal", 3),
    Sketcher.Constraint("Vertical", 4),
    Sketcher.Constraint("Horizontal", 5),
    Sketcher.Constraint("Vertical", 6),
    Sketcher.Constraint("Horizontal", 7),
    Sketcher.Constraint("Vertical", 8),
    Sketcher.Constraint("Horizontal", 9),
    Sketcher.Constraint("Vertical", 10),
    Sketcher.Constraint("Horizontal", 11),
    Sketcher.Constraint("Vertical", 12),
    Sketcher.Constraint("Horizontal", 13),
    Sketcher.Constraint("Vertical", 14),
    Sketcher.Constraint("Horizontal", 15),
    Sketcher.Constraint("Horizontal", 1, 2, 4, 2),
    Sketcher.Constraint("Horizontal", 3, 2, 6, 2),
    Sketcher.Constraint("Horizontal", 5, 2, 8, 2),
    Sketcher.Constraint("Horizontal", 7, 2, 10, 2),
    Sketcher.Constraint("Horizontal", 9, 2, 12, 2),
    Sketcher.Constraint("Horizontal", 11, 2, 14, 2),
    Sketcher.Constraint("Equal", 3, 5),
    Sketcher.Constraint("Equal", 7, 9),
    Sketcher.Constraint("Equal", 11, 13),
    Sketcher.Constraint("DistanceX", 1, 1, 1, 2, 5.0),
    Sketcher.Constraint("DistanceY", 0, 2, 0, 1, 17.0),
    Sketcher.Constraint("DistanceX", -1, 1, 0, 2, 40.0),
    Sketcher.Constraint("DistanceY", -1, 1, 0, 2, 22.0),
    Sketcher.Constraint("DistanceX", -1, 1, 4, 2, 110.0),
    Sketcher.Constraint("DistanceX", -1, 1, 8, 2, 225.0),
    Sketcher.Constraint("DistanceX", -1, 1, 12, 2, 295.0),
])
pocket9 = body.newObject("PartDesign::Pocket", "Pocket008")
pocket9.Profile = sketch10
pocket9.Length = 5

# Sketch on XY plane
sketch11 = body.newObject("Sketcher::SketchObject", "Sketch010")
sketch11.AttachmentSupport = (doc.getObject("XY_Plane"), [""])
sketch11.MapMode = "FlatFace"
sketch11.AttachmentOffset = App.Placement(App.Vector(0, 0, 5), App.Rotation())
sketch11.addGeometry([
    Part.Circle(App.Vector(155, 25, 0), App.Vector(0, 0, 1), 2.5),
    Part.Circle(App.Vector(185, 25, 0), App.Vector(0, 0, 1), 2.5),
], False)
sketch11.addConstraint([
    Sketcher.Constraint("Equal", 0, 1),
    Sketcher.Constraint("Horizontal", 0, 3, 1, 3),
    Sketcher.Constraint("Diameter", 0, 5.0),
    Sketcher.Constraint("DistanceX", -1, 1, 0, 3, 155.0),
    Sketcher.Constraint("DistanceY", -1, 1, 0, 3, 25.0),
    Sketcher.Constraint("DistanceX", -1, 1, 1, 3, 185.0),
])
pocket10 = body.newObject("PartDesign::Pocket", "Pocket009")
pocket10.Profile = sketch11
pocket10.Length = 10

doc.recompute()
